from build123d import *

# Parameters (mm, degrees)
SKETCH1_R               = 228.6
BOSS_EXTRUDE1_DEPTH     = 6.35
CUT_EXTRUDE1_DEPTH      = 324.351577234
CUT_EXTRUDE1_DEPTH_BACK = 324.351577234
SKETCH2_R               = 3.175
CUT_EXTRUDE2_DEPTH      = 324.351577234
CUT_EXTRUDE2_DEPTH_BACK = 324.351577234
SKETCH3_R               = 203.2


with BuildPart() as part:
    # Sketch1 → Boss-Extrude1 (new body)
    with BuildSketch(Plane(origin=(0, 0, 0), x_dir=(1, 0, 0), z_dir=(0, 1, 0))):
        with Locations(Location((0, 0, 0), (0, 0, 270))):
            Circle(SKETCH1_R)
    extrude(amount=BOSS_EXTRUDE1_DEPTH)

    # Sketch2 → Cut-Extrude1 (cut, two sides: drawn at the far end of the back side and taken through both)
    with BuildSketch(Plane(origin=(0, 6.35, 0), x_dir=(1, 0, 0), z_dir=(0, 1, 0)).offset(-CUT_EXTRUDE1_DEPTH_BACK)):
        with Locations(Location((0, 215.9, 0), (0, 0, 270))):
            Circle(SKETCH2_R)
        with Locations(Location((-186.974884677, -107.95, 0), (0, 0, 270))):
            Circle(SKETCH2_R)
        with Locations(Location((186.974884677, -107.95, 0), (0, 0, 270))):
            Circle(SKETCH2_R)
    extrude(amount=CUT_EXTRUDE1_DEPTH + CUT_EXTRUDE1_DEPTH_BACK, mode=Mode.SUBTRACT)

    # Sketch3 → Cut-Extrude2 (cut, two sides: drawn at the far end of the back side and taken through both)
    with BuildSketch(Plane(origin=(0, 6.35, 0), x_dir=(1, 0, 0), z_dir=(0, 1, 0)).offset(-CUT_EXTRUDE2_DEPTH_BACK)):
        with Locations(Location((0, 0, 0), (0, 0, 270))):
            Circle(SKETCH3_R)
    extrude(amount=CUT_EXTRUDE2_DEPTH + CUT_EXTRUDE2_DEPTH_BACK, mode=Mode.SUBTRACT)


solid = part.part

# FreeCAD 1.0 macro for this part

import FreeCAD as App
import Part
import Sketcher

V = App.Vector
Q = App.Units.Quantity

doc = App.newDocument("Part")
body = doc.addObject("PartDesign::Body", "Body")

# Sketch on XZ plane
sketch1 = body.newObject("Sketcher::SketchObject", "Sketch")
sketch1.AttachmentSupport = (doc.getObject("XZ_Plane"), [""])
sketch1.MapMode = "FlatFace"
sketch1.addGeometry(Part.Circle(V(0, 0, 0), V(0, 0, 1), 229), False)
sketch1.addConstraint([
    Sketcher.Constraint("Coincident", 0, 3, -1, 1),
    Sketcher.Constraint("Diameter", 0, Q("18 in")),
])
pad1 = body.newObject("PartDesign::Pad", "Pad")
pad1.Profile = sketch1
pad1.Length = Q("0.25 in")
pad1.Reversed = True

# Sketch on XZ plane
sketch2 = body.newObject("Sketcher::SketchObject", "Sketch001")
sketch2.AttachmentSupport = (doc.getObject("XZ_Plane"), [""])
sketch2.MapMode = "FlatFace"
sketch2.AttachmentOffset = App.Placement(V(0, 0, -0.25 * 25.4), App.Rotation())
sketch2.addGeometry([
    Part.Circle(V(0, -215.9, 0), V(0, 0, 1), 3.2),
    Part.Circle(V(-187, 108, 0), V(0, 0, 1), 3.2),
    Part.Circle(V(187, 108, 0), V(0, 0, 1), 3.2),
], False)
sketch2.addConstraint([
    Sketcher.Constraint("Equal", 0, 1),
    Sketcher.Constraint("Equal", 1, 2),
    Sketcher.Constraint("Symmetric", 1, 3, 2, 3, -2),
    Sketcher.Constraint("PointOnObject", 0, 3, -2),
    Sketcher.Constraint("Diameter", 0, Q("0.25 in")),
    Sketcher.Constraint("DistanceY", 0, 3, -1, 1, Q("8.5 in")),
    Sketcher.Constraint("DistanceY", -1, 1, 1, 3, Q("4.25 in")),
    Sketcher.Constraint("DistanceX", 1, 3, 2, 3, 373.949769),
])
pocket1 = body.newObject("PartDesign::Pocket", "Pocket")
pocket1.Profile = sketch2
pocket1.Type = "ThroughAll"
pocket1.Midplane = True

# Sketch on XZ plane
sketch3 = body.newObject("Sketcher::SketchObject", "Sketch002")
sketch3.AttachmentSupport = (doc.getObject("XZ_Plane"), [""])
sketch3.MapMode = "FlatFace"
sketch3.AttachmentOffset = App.Placement(V(0, 0, -0.25 * 25.4), App.Rotation())
sketch3.addGeometry(Part.Circle(V(0, 0, 0), V(0, 0, 1), 203), False)
sketch3.addConstraint([
    Sketcher.Constraint("Coincident", 0, 3, -1, 1),
    Sketcher.Constraint("Diameter", 0, Q("16 in")),
])
pocket2 = body.newObject("PartDesign::Pocket", "Pocket001")
pocket2.Profile = sketch3
pocket2.Type = "ThroughAll"
pocket2.Midplane = True

doc.recompute()
